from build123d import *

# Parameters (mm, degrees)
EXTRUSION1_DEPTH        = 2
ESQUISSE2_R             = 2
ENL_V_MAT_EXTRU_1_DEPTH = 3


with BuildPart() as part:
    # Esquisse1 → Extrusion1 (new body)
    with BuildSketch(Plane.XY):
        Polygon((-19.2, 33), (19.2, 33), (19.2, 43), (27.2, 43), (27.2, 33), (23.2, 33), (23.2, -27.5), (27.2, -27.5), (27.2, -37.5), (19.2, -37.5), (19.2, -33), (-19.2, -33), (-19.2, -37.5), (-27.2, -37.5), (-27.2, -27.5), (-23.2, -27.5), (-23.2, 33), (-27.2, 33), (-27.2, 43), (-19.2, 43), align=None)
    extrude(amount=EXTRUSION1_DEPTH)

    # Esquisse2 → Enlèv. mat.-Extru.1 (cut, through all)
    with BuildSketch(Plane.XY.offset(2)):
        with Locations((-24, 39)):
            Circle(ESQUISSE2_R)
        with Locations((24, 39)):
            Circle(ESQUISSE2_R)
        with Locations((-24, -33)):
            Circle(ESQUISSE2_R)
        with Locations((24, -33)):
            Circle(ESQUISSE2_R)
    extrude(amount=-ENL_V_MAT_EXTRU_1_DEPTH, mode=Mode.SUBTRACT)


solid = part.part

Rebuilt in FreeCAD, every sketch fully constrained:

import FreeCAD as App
import Part
import Sketcher


def add_polygon(sketch, points):
    """Adds a closed chain of lines whose ends are joined by coincident constraints."""
    first, n = sketch.GeometryCount, len(points)
    for a, b in zip(points, points[1:] + points[:1]):
        sketch.addGeometry(Part.LineSegment(App.Vector(*a, 0), App.Vector(*b, 0)), False)
    for i in range(n):
        sketch.addConstraint(Sketcher.Constraint("Coincident", first + i, 2, first + (i + 1) % n, 1))

doc = App.newDocument("Part")
body = doc.addObject("PartDesign::Body", "Body")

# Sketch on XY plane
sketch1 = doc.addObject("Sketcher::SketchObject", "Sketch")
body.addObject(sketch1)
sketch1.AttachmentSupport = (doc.XY_Plane, [""])
sketch1.MapMode = "FlatFace"
add_polygon(sketch1, [(19.2, 33), (-19.2, 33), (-19.2, 43), (-27.2, 43), (-27.2, 33), (-23.2, 33), (-23.2, -27.5), (-27.2, -27.5), (-27.2, -37.5), (-19.2, -37.5), (-19.2, -33), (19.2, -33), (19.2, -37.5), (27.2, -37.5), (27.2, -27.5), (23.2, -27.5), (23.2, 33), (27.2, 33), (27.2, 43), (19.2, 43)])  # lines 0-19
sketch1.addConstraint(Sketcher.Constraint("Horizontal", 0))
sketch1.addConstraint(Sketcher.Constraint("Vertical", 1))
sketch1.addConstraint(Sketcher.Constraint("Horizontal", 2))
sketch1.addConstraint(Sketcher.Constraint("Vertical", 3))
sketch1.addConstraint(Sketcher.Constraint("Horizontal", 4))
sketch1.addConstraint(Sketcher.Constraint("Vertical", 5))
sketch1.addConstraint(Sketcher.Constraint("Horizontal", 6))
sketch1.addConstraint(Sketcher.Constraint("Vertical", 7))
sketch1.addConstraint(Sketcher.Constraint("Horizontal", 8))
sketch1.addConstraint(Sketcher.Constraint("Vertical", 9))
sketch1.addConstraint(Sketcher.Constraint("Horizontal", 10))
sketch1.addConstraint(Sketcher.Constraint("Vertical", 11))
sketch1.addConstraint(Sketcher.Constraint("Horizontal", 12))
sketch1.addConstraint(Sketcher.Constraint("Vertical", 13))
sketch1.addConstraint(Sketcher.Constraint("Horizontal", 14))
sketch1.addConstraint(Sketcher.Constraint("Vertical", 15))
sketch1.addConstraint(Sketcher.Constraint("Horizontal", 16))
sketch1.addConstraint(Sketcher.Constraint("Vertical", 17))
sketch1.addConstraint(Sketcher.Constraint("Horizontal", 18))
sketch1.addConstraint(Sketcher.Constraint("Vertical", 19))
sketch1.addConstraint(Sketcher.Constraint("Symmetric", 0, 2, 10, 2, -1, 1))
sketch1.addConstraint(Sketcher.Constraint("Symmetric", 8, 2, 11, 2, -2))
sketch1.addConstraint(Sketcher.Constraint("Symmetric", 6, 2, 13, 2, -2))
sketch1.addConstraint(Sketcher.Constraint("Symmetric", 4, 2, 15, 2, -2))
sketch1.addConstraint(Sketcher.Constraint("Symmetric", 2, 2, 17, 2, -2))
sketch1.addConstraint(Sketcher.Constraint("Horizontal", 0, 2, 3, 2))
sketch1.addConstraint(Sketcher.Constraint("Vertical", 3, 2, 6, 2))
sketch1.addConstraint(Sketcher.Constraint("Vertical", 11, 2, 18, 2))
sketch1.addConstraint(Sketcher.Constraint("Equal", 3, 7))
sketch1.addConstraint(Sketcher.Constraint("DistanceX", 2, 2, 2, 1, 8.0))
sketch1.addConstraint(Sketcher.Constraint("DistanceX", 4, 1, 4, 2, 4.0))
sketch1.addConstraint(Sketcher.Constraint("DistanceY", 1, 1, 1, 2, 10.0))
sketch1.addConstraint(Sketcher.Constraint("DistanceX", 0, 2, 0, 1, 38.4))
sketch1.addConstraint(Sketcher.Constraint("DistanceY", 5, 2, 5, 1, 60.5))
sketch1.addConstraint(Sketcher.Constraint("DistanceY", 9, 1, 9, 2, 4.5))
pad1 = doc.addObject("PartDesign::Pad", "Pad")
body.addObject(pad1)
pad1.Profile = sketch1
pad1.Length = 2

# Sketch on XY plane
sketch2 = doc.addObject("Sketcher::SketchObject", "Sketch001")
body.addObject(sketch2)
sketch2.AttachmentSupport = (doc.XY_Plane, [""])
sketch2.MapMode = "FlatFace"
sketch2.AttachmentOffset = App.Placement(App.Vector(0, 0, 2), App.Rotation())
sketch2.addGeometry(Part.Circle(App.Vector(-24, 39, 0), App.Vector(0, 0, 1), 2), False)
sketch2.addGeometry(Part.Circle(App.Vector(24, 39, 0), App.Vector(0, 0, 1), 2), False)
sketch2.addGeometry(Part.Circle(App.Vector(-24, -33, 0), App.Vector(0, 0, 1), 2), False)
sketch2.addGeometry(Part.Circle(App.Vector(24, -33, 0), App.Vector(0, 0, 1), 2), False)
sketch2.addConstraint(Sketcher.Constraint("Equal", 0, 1))
sketch2.addConstraint(Sketcher.Constraint("Equal", 1, 2))
sketch2.addConstraint(Sketcher.Constraint("Equal", 2, 3))
sketch2.addConstraint(Sketcher.Constraint("Symmetric", 0, 3, 1, 3, -2))
sketch2.addConstraint(Sketcher.Constraint("Symmetric", 2, 3, 3, 3, -2))
sketch2.addConstraint(Sketcher.Constraint("Vertical", 0, 3, 2, 3))
sketch2.addConstraint(Sketcher.Constraint("Diameter", 0, 4.0))
sketch2.addConstraint(Sketcher.Constraint("DistanceX", 0, 3, -1, 1, 24.0))
sketch2.addConstraint(Sketcher.Constraint("DistanceY", -1, 1, 0, 3, 39.0))
sketch2.addConstraint(Sketcher.Constraint("DistanceY", 2, 3, -1, 1, 33.0))
pocket1 = doc.addObject("PartDesign::Pocket", "Pocket")
body.addObject(pocket1)
pocket1.Profile = sketch2
pocket1.Type = "ThroughAll"

doc.recompute()
